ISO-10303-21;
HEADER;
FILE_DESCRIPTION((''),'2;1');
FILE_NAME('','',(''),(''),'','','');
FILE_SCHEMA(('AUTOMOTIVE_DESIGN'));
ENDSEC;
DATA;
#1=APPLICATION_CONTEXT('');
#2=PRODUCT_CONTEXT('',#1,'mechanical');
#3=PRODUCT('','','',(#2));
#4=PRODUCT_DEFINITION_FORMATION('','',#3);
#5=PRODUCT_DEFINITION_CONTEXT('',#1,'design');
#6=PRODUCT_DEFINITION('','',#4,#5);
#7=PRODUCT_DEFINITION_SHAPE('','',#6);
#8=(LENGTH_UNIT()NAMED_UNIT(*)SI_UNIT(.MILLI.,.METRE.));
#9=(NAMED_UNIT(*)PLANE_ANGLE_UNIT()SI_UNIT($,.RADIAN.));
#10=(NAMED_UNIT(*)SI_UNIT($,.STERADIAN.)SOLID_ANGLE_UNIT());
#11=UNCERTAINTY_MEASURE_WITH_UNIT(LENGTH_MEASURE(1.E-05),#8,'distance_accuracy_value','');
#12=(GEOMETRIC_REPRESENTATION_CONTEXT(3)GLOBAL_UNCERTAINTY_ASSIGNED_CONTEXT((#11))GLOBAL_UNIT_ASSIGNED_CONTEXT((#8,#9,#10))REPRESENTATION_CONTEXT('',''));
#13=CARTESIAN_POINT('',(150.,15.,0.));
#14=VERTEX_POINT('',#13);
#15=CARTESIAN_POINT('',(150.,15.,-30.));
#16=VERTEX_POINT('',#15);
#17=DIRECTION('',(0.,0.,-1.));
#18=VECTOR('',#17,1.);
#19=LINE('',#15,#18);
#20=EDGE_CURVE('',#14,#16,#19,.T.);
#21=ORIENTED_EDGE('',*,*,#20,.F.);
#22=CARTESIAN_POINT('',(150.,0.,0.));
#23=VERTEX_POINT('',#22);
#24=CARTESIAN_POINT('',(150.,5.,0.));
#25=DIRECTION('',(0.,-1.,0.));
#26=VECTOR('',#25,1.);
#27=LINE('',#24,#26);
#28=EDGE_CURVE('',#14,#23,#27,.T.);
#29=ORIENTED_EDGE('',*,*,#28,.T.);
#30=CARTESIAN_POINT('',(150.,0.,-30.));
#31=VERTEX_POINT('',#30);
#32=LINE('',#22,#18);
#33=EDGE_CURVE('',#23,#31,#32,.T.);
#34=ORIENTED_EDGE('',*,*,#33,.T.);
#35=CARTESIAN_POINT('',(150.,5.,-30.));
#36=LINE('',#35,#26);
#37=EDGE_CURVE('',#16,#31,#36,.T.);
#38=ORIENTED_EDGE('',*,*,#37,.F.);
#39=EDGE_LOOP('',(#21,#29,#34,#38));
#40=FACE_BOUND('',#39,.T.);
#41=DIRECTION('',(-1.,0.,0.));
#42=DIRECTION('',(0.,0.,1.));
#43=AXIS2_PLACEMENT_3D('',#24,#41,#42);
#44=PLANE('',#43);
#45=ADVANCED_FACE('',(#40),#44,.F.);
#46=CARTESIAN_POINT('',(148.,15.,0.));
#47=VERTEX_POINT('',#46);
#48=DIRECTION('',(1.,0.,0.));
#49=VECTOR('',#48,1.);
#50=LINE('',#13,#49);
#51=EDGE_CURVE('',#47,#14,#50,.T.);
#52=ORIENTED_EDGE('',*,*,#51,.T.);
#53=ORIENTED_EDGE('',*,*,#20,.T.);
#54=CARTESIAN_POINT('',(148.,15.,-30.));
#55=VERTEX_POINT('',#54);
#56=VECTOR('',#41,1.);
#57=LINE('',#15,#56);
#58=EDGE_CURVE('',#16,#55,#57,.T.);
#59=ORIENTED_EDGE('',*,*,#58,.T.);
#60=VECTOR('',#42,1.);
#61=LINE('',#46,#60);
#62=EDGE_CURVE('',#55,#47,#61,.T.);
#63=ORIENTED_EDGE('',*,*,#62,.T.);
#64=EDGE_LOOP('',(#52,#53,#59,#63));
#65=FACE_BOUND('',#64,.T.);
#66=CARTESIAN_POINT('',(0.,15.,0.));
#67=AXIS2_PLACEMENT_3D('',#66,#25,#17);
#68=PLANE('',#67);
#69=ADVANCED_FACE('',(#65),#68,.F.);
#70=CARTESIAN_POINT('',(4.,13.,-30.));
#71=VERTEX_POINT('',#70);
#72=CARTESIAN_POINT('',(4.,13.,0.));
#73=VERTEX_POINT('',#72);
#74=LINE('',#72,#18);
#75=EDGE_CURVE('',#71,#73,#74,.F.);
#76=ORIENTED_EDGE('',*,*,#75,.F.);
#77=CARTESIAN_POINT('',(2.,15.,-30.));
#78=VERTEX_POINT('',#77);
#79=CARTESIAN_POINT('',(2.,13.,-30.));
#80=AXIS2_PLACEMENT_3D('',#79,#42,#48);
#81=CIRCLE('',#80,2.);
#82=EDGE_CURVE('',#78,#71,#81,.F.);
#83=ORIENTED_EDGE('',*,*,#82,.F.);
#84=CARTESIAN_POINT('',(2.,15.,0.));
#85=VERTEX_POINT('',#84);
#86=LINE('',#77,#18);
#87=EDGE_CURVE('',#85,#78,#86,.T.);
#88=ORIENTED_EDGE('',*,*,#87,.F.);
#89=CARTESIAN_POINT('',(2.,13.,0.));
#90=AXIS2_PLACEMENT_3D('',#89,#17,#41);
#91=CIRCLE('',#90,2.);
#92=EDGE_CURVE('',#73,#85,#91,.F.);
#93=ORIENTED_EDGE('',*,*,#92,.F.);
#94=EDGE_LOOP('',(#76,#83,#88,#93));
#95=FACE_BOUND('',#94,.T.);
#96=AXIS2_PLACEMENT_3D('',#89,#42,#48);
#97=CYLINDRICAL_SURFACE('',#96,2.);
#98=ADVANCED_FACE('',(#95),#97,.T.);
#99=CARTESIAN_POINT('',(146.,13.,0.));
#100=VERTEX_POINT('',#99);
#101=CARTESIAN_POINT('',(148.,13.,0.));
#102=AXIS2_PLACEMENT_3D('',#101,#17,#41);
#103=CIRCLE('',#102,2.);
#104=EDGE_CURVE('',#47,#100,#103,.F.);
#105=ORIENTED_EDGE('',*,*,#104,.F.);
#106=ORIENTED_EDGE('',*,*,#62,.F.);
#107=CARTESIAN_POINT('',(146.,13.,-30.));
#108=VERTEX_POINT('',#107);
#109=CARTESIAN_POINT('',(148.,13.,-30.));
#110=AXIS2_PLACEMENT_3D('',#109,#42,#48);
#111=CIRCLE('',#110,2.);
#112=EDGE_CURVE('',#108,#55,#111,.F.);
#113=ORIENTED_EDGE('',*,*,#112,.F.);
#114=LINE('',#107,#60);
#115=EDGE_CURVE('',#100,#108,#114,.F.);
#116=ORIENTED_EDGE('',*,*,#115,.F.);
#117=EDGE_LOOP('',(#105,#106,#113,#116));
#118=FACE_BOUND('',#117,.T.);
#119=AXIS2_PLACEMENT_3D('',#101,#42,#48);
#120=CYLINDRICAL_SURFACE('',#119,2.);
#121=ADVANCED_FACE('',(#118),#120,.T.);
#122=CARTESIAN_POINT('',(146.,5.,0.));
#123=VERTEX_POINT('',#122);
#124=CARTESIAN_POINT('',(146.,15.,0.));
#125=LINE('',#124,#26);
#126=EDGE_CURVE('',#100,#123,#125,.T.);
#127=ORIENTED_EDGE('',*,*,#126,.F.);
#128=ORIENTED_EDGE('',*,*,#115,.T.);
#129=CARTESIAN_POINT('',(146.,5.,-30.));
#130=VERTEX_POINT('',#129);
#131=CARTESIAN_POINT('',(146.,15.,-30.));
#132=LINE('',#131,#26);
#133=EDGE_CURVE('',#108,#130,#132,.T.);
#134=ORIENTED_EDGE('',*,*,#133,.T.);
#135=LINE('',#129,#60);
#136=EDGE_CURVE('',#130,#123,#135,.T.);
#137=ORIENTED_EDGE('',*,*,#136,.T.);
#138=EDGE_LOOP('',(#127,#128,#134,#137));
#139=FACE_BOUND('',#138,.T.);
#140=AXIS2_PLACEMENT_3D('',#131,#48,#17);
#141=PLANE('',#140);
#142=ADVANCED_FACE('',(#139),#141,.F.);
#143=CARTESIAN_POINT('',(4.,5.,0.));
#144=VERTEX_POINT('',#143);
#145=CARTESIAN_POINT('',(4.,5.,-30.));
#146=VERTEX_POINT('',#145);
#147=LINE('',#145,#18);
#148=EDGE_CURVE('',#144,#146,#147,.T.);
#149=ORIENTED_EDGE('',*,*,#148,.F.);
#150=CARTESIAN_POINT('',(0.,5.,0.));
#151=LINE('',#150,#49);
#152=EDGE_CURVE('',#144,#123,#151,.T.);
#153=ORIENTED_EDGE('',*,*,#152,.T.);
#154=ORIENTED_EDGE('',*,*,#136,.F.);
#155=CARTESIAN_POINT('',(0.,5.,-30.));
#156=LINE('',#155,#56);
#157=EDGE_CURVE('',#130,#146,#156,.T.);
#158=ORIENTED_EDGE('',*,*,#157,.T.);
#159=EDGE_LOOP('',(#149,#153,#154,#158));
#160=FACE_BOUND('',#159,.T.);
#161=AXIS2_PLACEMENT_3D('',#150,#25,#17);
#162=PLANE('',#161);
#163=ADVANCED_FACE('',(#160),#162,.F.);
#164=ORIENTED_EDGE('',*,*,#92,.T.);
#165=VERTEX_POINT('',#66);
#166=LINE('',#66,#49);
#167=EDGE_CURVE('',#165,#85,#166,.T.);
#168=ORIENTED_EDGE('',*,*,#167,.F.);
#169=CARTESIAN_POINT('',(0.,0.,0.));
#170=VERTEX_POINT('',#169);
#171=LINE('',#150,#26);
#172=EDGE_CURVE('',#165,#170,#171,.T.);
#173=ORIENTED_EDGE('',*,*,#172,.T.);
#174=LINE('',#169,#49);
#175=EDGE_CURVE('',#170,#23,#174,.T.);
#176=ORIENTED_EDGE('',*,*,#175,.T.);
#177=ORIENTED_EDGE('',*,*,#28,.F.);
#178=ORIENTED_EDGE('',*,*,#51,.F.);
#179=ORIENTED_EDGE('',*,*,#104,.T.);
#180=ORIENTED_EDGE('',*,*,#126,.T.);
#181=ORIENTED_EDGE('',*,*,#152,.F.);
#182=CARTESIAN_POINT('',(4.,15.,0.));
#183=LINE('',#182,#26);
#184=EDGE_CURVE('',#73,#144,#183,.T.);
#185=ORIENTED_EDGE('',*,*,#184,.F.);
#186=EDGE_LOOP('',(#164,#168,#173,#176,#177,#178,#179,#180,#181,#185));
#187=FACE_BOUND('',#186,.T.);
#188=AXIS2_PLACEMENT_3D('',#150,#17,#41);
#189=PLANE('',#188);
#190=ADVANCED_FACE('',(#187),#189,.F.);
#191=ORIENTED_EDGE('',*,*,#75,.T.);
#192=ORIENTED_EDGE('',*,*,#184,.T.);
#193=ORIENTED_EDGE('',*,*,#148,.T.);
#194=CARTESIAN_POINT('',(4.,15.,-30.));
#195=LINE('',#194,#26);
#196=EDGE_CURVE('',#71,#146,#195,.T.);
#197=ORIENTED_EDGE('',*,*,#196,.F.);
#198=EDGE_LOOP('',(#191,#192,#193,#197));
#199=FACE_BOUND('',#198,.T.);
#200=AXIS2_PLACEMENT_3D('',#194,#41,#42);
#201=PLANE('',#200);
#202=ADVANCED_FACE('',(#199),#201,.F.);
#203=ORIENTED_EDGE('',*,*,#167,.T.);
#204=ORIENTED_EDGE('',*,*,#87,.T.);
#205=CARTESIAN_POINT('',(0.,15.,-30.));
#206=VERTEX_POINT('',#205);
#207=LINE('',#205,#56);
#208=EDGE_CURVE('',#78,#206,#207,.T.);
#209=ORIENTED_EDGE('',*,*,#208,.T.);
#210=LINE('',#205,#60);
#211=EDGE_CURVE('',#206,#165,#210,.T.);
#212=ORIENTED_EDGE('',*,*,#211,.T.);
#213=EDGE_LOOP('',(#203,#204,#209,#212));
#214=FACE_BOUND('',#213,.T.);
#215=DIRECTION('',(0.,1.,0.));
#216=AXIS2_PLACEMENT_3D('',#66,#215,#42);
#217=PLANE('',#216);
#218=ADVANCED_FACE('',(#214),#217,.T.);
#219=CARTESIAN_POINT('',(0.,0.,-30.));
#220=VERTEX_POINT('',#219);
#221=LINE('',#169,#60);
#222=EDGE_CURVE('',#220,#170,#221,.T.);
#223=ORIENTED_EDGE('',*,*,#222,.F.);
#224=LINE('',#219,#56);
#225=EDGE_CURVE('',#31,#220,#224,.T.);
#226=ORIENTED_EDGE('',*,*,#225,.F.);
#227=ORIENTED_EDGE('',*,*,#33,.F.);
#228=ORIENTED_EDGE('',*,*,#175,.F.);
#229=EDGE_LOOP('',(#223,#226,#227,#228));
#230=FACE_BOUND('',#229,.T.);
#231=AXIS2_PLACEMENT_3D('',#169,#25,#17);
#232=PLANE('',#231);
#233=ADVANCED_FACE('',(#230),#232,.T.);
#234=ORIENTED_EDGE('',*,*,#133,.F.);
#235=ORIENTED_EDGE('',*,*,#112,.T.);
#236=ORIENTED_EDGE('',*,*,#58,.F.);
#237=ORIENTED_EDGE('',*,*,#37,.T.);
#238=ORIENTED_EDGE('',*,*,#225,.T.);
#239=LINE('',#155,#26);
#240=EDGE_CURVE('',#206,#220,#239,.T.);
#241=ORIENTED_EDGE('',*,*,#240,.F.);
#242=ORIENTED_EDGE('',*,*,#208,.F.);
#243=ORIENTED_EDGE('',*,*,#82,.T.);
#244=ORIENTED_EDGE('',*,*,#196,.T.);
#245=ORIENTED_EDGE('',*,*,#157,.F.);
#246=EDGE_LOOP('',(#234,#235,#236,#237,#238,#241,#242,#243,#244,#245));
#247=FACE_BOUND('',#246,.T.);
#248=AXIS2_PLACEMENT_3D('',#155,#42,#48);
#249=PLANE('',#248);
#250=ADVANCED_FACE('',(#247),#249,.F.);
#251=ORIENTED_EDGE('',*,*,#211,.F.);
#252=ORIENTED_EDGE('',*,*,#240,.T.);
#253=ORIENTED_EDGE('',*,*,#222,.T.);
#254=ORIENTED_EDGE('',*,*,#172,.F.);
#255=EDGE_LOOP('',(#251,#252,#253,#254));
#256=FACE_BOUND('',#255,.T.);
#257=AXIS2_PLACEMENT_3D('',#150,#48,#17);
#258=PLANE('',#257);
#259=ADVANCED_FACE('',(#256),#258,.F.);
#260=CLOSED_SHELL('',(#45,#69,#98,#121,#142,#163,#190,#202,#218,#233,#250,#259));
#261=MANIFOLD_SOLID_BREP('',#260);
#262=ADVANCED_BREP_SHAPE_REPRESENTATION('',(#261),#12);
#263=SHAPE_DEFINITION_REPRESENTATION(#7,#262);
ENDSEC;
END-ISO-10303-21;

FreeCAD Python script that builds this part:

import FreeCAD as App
import Part
import Sketcher


def edges_at(feature, points):
    """Names of the edges that pass closest to the given points."""
    edges = feature.Shape.Edges
    near = lambda p: min(range(len(edges)), key=lambda i: edges[i].distToShape(Part.Vertex(*p))[0])
    return sorted({f"Edge{near(p) + 1}" for p in points})


def add_polygon(sketch, points):
    """Adds a closed chain of lines whose ends are joined by coincident constraints."""
    first, n = sketch.GeometryCount, len(points)
    for a, b in zip(points, points[1:] + points[:1]):
        sketch.addGeometry(Part.LineSegment(App.Vector(*a, 0), App.Vector(*b, 0)), False)
    for i in range(n):
        sketch.addConstraint(Sketcher.Constraint("Coincident", first + i, 2, first + (i + 1) % n, 1))

doc = App.newDocument("Part")
body = doc.addObject("PartDesign::Body", "Body")

sketch1 = doc.addObject("Sketcher::SketchObject", "Sketch")
body.addObject(sketch1)
sketch1.AttachmentSupport = (doc.XZ_Plane, [""])
sketch1.MapMode = "FlatFace"
add_polygon(sketch1, [(0, -30), (0, 0), (150, 0), (150, -30)])
sketch1.addConstraint([
    Sketcher.Constraint("Vertical", 0),
    Sketcher.Constraint("Horizontal", 1),
    Sketcher.Constraint("Vertical", 2),
    Sketcher.Constraint("Horizontal", 3),
    Sketcher.Constraint("Coincident", 0, 2, -1, 1),
    Sketcher.Constraint("DistanceX", 1, 1, 1, 2, 150.0),
    Sketcher.Constraint("DistanceY", 0, 1, 0, 2, 30.0),
])
pad1 = doc.addObject("PartDesign::Pad", "Pad")
body.addObject(pad1)
pad1.Profile = sketch1
pad1.Length = 5
pad1.Reversed = True

sketch2 = doc.addObject("Sketcher::SketchObject", "Sketch001")
body.addObject(sketch2)
sketch2.AttachmentSupport = (doc.XZ_Plane, [""])
sketch2.MapMode = "FlatFace"
sketch2.AttachmentOffset = App.Placement(App.Vector(0, 0, -5), App.Rotation())
add_polygon(sketch2, [(146, -30), (146, 0), (150, 0), (150, -30)])
sketch2.addConstraint([
    Sketcher.Constraint("Vertical", 0),
    Sketcher.Constraint("Horizontal", 1),
    Sketcher.Constraint("Vertical", 2),
    Sketcher.Constraint("Horizontal", 3),
    Sketcher.Constraint("PointOnObject", 0, 2, -1),
    Sketcher.Constraint("DistanceX", 1, 1, 1, 2, 4.0),
    Sketcher.Constraint("DistanceY", 0, 1, 0, 2, 30.0),
    Sketcher.Constraint("DistanceX", -1, 1, 0, 2, 146.0),
])
pad2 = doc.addObject("PartDesign::Pad", "Pad001")
body.addObject(pad2)
pad2.Profile = sketch2
pad2.Length = 10
pad2.Reversed = True

sketch3 = doc.addObject("Sketcher::SketchObject", "Sketch002")
body.addObject(sketch3)
sketch3.AttachmentSupport = (doc.XZ_Plane, [""])
sketch3.MapMode = "FlatFace"
sketch3.AttachmentOffset = App.Placement(App.Vector(0, 0, -5), App.Rotation())
add_polygon(sketch3, [(0, -30), (0, 0), (4, 0), (4, -30)])
sketch3.addConstraint([
    Sketcher.Constraint("Vertical", 0),
    Sketcher.Constraint("Horizontal", 1),
    Sketcher.Constraint("Vertical", 2),
    Sketcher.Constraint("Horizontal", 3),
    Sketcher.Constraint("Coincident", 0, 2, -1, 1),
    Sketcher.Constraint("DistanceX", 1, 1, 1, 2, 4.0),
    Sketcher.Constraint("DistanceY", 0, 1, 0, 2, 30.0),
])
pad3 = doc.addObject("PartDesign::Pad", "Pad002")
body.addObject(pad3)
pad3.Profile = sketch3
pad3.Length = 10
pad3.Reversed = True
doc.recompute()

fillet = doc.addObject("PartDesign::Fillet", "Fillet")
body.addObject(fillet)
fillet.Base = (pad3, edges_at(pad3, [(146, 15, -15), (4, 15, -15)]))
fillet.Radius = 2

doc.recompute()
